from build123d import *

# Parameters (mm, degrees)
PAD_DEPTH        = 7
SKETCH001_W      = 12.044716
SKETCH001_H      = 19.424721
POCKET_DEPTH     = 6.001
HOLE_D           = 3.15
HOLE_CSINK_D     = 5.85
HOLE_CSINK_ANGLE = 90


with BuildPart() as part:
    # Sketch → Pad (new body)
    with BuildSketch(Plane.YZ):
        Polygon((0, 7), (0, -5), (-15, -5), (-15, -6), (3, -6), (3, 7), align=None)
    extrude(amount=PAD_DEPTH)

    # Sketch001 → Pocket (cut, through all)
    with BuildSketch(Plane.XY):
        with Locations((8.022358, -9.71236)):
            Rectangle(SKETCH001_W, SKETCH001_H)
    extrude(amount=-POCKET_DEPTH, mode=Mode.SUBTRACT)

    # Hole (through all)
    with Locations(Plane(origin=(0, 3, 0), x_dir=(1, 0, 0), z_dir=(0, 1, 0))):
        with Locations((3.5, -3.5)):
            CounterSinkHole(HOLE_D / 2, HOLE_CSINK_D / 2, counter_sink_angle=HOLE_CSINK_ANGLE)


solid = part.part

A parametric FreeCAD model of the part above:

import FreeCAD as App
import Part
import Sketcher


def add_polygon(sketch, points):
    """Adds a closed chain of lines whose ends are joined by coincident constraints."""
    first, n = sketch.GeometryCount, len(points)
    for a, b in zip(points, points[1:] + points[:1]):
        sketch.addGeometry(Part.LineSegment(App.Vector(*a, 0), App.Vector(*b, 0)), False)
    for i in range(n):
        sketch.addConstraint(Sketcher.Constraint("Coincident", first + i, 2, first + (i + 1) % n, 1))

doc = App.newDocument("Part")
body = doc.addObject("PartDesign::Body", "Body")

sketch1 = body.newObject("Sketcher::SketchObject", "Sketch")
sketch1.AttachmentSupport = (doc.getObject("YZ_Plane"), [""])
sketch1.MapMode = "FlatFace"
add_polygon(sketch1, [(0, 7), (0, -5), (-15, -5), (-15, -6), (3, -6), (3, 7)])
sketch1.addConstraint([
    Sketcher.Constraint("Vertical", 0),
    Sketcher.Constraint("Horizontal", 1),
    Sketcher.Constraint("Vertical", 2),
    Sketcher.Constraint("Horizontal", 3),
    Sketcher.Constraint("Vertical", 4),
    Sketcher.Constraint("Horizontal", 5),
    Sketcher.Constraint("PointOnObject", 0, 2, -2),
    Sketcher.Constraint("DistanceX", 1, 2, 1, 1, 15.0),
    Sketcher.Constraint("DistanceX", 3, 1, 3, 2, 18.0),
    Sketcher.Constraint("DistanceY", 0, 2, 0, 1, 12.0),
    Sketcher.Constraint("DistanceY", 2, 2, 2, 1, 1.0),
    Sketcher.Constraint("DistanceY", 0, 2, -1, 1, 5.0),
])
pad1 = body.newObject("PartDesign::Pad", "Pad")
pad1.Profile = sketch1
pad1.Length = 7

sketch2 = body.newObject("Sketcher::SketchObject", "Sketch001")
sketch2.AttachmentSupport = (doc.getObject("XY_Plane"), [""])
sketch2.MapMode = "FlatFace"
add_polygon(sketch2, [(2, 0), (2, -19), (14, -19), (14, 0)])
sketch2.addConstraint([
    Sketcher.Constraint("Vertical", 0),
    Sketcher.Constraint("Horizontal", 1),
    Sketcher.Constraint("Vertical", 2),
    Sketcher.Constraint("Horizontal", 3),
    Sketcher.Constraint("PointOnObject", 2, 2, -1),
    Sketcher.Constraint("DistanceX", -1, 1, 0, 2, 2.0),
    Sketcher.Constraint("DistanceY", 0, 2, 0, 1, 19.424721),
    Sketcher.Constraint("DistanceX", 1, 1, 1, 2, 12.044716),
])
pocket1 = body.newObject("PartDesign::Pocket", "Pocket")
pocket1.Profile = sketch2
pocket1.Type = "ThroughAll"

sketch3 = body.newObject("Sketcher::SketchObject", "Sketch002")
sketch3.AttachmentSupport = (doc.getObject("XZ_Plane"), [""])
sketch3.MapMode = "FlatFace"
sketch3.AttachmentOffset = App.Placement(App.Vector(0, 0, -3), App.Rotation())
sketch3.addGeometry(Part.Circle(App.Vector(3.5, 3.5, 0), App.Vector(0, 0, 1), 1.6), False)
sketch3.addConstraint([
    Sketcher.Constraint("Diameter", 0, 3.15),
    Sketcher.Constraint("DistanceX", -1, 1, 0, 3, 3.5),
    Sketcher.Constraint("DistanceY", -1, 1, 0, 3, 3.5),
])
doc.recompute()
hole = body.newObject("PartDesign::Hole", "Hole")
hole.Profile = sketch3
hole.ThreadType = "None"
hole.Diameter = 3.15
hole.DepthType = "ThroughAll"
hole.HoleCutType = "Countersink"
hole.HoleCutDiameter = 5.85
hole.HoleCutCountersinkAngle = 90
hole.Reversed = True

doc.recompute()
